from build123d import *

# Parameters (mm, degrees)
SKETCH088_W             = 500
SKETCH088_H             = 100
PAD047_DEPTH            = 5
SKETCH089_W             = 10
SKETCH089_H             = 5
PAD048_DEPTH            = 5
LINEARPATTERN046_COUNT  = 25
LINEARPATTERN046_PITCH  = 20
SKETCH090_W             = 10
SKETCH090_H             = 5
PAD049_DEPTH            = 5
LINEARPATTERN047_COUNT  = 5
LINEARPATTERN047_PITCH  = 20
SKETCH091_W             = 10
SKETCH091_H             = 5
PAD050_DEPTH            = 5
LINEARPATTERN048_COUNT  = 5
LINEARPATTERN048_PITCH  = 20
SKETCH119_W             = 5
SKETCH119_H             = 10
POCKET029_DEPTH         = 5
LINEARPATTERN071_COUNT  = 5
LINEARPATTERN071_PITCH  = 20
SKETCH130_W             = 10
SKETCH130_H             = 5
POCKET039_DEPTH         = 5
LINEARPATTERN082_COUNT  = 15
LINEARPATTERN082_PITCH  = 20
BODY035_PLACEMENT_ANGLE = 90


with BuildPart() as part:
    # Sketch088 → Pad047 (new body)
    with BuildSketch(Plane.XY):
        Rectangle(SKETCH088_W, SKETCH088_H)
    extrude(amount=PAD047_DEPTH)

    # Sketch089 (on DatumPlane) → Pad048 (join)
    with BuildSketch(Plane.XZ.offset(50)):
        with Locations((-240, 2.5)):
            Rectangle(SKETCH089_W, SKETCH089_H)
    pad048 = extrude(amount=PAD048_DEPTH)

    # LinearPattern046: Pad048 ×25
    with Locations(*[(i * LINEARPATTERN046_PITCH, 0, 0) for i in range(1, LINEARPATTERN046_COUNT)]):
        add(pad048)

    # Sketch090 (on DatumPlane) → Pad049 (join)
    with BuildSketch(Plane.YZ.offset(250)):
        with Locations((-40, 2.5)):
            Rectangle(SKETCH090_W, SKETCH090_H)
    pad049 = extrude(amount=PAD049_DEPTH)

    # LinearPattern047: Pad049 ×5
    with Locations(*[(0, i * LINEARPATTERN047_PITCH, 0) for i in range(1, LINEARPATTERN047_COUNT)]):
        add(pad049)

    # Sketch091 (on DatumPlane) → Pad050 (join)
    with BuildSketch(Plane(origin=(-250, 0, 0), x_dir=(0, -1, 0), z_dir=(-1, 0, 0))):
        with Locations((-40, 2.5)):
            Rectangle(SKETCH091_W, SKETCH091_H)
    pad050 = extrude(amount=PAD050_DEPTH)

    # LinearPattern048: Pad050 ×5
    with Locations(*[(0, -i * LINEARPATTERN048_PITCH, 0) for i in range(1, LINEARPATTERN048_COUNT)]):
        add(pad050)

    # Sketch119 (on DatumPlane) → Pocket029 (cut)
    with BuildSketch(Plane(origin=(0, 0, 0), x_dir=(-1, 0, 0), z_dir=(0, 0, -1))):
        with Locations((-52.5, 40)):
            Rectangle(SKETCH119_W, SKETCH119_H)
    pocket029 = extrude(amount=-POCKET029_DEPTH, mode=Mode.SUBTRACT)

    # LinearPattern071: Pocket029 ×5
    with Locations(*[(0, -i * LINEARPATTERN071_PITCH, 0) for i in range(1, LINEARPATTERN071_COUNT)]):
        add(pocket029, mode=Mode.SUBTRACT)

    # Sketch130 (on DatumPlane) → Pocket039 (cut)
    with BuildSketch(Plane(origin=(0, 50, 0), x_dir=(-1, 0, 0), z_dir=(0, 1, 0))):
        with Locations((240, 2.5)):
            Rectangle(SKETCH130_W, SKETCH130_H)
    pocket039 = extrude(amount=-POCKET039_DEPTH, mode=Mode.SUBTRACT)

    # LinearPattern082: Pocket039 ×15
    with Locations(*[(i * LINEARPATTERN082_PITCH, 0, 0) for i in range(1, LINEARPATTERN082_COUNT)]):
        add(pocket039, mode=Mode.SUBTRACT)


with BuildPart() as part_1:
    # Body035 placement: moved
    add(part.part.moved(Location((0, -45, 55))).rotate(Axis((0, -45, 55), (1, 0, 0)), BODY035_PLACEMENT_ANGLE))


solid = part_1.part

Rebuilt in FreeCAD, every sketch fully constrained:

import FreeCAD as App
import Part
import Sketcher
from FreeCAD import Vector
Q = App.Units.Quantity


def add_polygon(sketch, points):
    """Adds a closed chain of lines whose ends are joined by coincident constraints."""
    first, n = sketch.GeometryCount, len(points)
    for a, b in zip(points, points[1:] + points[:1]):
        sketch.addGeometry(Part.LineSegment(App.Vector(*a, 0), App.Vector(*b, 0)), False)
    for i in range(n):
        sketch.addConstraint(Sketcher.Constraint("Coincident", first + i, 2, first + (i + 1) % n, 1))

doc = App.newDocument("Part")
body = doc.addObject("PartDesign::Body", "Body")

sketch1 = body.newObject("Sketcher::SketchObject", "Sketch")
sketch1.AttachmentSupport = (doc.getObject("XY_Plane"), [""])
sketch1.MapMode = "FlatFace"
add_polygon(sketch1, [(-250, 50), (-250, -50), (250, -50), (250, 50)])
sketch1.addConstraint(Sketcher.Constraint("Vertical", 0))
sketch1.addConstraint(Sketcher.Constraint("Horizontal", 1))
sketch1.addConstraint(Sketcher.Constraint("Vertical", 2))
sketch1.addConstraint(Sketcher.Constraint("Horizontal", 3))
sketch1.addConstraint(Sketcher.Constraint("Symmetric", 0, 2, 2, 2, -1, 1))
sketch1.addConstraint(Sketcher.Constraint("DistanceX", 1, 1, 1, 2, Q("500 mm")))
sketch1.addConstraint(Sketcher.Constraint("DistanceY", 0, 2, 0, 1, Q("100 mm")))
pad1 = body.newObject("PartDesign::Pad", "Pad")
pad1.Profile = sketch1
pad1.Length = 5

sketch2 = body.newObject("Sketcher::SketchObject", "Sketch001")
sketch2.AttachmentSupport = (doc.getObject("XZ_Plane"), [""])
sketch2.MapMode = "FlatFace"
sketch2.AttachmentOffset = App.Placement(Vector(0, 0, 50), App.Rotation())
add_polygon(sketch2, [(-245, 5), (-245, 0), (-235, 0), (-235, 5)])
sketch2.addConstraint(Sketcher.Constraint("Vertical", 0))
sketch2.addConstraint(Sketcher.Constraint("Horizontal", 1))
sketch2.addConstraint(Sketcher.Constraint("Vertical", 2))
sketch2.addConstraint(Sketcher.Constraint("Horizontal", 3))
sketch2.addConstraint(Sketcher.Constraint("PointOnObject", 0, 2, -1))
sketch2.addConstraint(Sketcher.Constraint("DistanceX", 1, 1, 1, 2, Q("10 mm")))
sketch2.addConstraint(Sketcher.Constraint("DistanceY", 0, 2, 0, 1, Q("5 mm")))
sketch2.addConstraint(Sketcher.Constraint("DistanceX", 0, 2, -1, 1, Q("245 mm")))
pad2 = body.newObject("PartDesign::Pad", "Pad001")
pad2.Profile = sketch2
pad2.Length = 5
doc.recompute()

linearpattern = body.newObject("PartDesign::LinearPattern", "LinearPattern")
linearpattern.Originals = [pad2]
linearpattern.Direction = (doc.getObject("X_Axis"), [""])
linearpattern.Mode = "offset"
linearpattern.Offset = 20
linearpattern.Occurrences = 25
body.Tip = linearpattern

sketch3 = body.newObject("Sketcher::SketchObject", "Sketch002")
sketch3.AttachmentSupport = (doc.getObject("YZ_Plane"), [""])
sketch3.MapMode = "FlatFace"
sketch3.AttachmentOffset = App.Placement(Vector(0, 0, 250), App.Rotation())
add_polygon(sketch3, [(-45, 5), (-45, 0), (-35, 0), (-35, 5)])
sketch3.addConstraint(Sketcher.Constraint("Vertical", 0))
sketch3.addConstraint(Sketcher.Constraint("Horizontal", 1))
sketch3.addConstraint(Sketcher.Constraint("Vertical", 2))
sketch3.addConstraint(Sketcher.Constraint("Horizontal", 3))
sketch3.addConstraint(Sketcher.Constraint("PointOnObject", 0, 2, -1))
sketch3.addConstraint(Sketcher.Constraint("DistanceX", 1, 1, 1, 2, Q("10 mm")))
sketch3.addConstraint(Sketcher.Constraint("DistanceY", 0, 2, 0, 1, Q("5 mm")))
sketch3.addConstraint(Sketcher.Constraint("DistanceX", 0, 2, -1, 1, Q("45 mm")))
pad3 = body.newObject("PartDesign::Pad", "Pad002")
pad3.Profile = sketch3
pad3.Length = 5
doc.recompute()

linearpattern2 = body.newObject("PartDesign::LinearPattern", "LinearPattern001")
linearpattern2.Originals = [pad3]
linearpattern2.Direction = (doc.getObject("Y_Axis"), [""])
linearpattern2.Mode = "offset"
linearpattern2.Offset = 20
linearpattern2.Occurrences = 5
body.Tip = linearpattern2

sketch4 = body.newObject("Sketcher::SketchObject", "Sketch003")
sketch4.AttachmentSupport = (doc.getObject("YZ_Plane"), [""])
sketch4.MapMode = "FlatFace"
sketch4.AttachmentOffset = App.Placement(Vector(0, 0, -250), App.Rotation())
add_polygon(sketch4, [(45, 5), (45, 0), (35, 0), (35, 5)])
sketch4.addConstraint(Sketcher.Constraint("Vertical", 0))
sketch4.addConstraint(Sketcher.Constraint("Horizontal", 1))
sketch4.addConstraint(Sketcher.Constraint("Vertical", 2))
sketch4.addConstraint(Sketcher.Constraint("Horizontal", 3))
sketch4.addConstraint(Sketcher.Constraint("PointOnObject", 0, 2, -1))
sketch4.addConstraint(Sketcher.Constraint("DistanceX", 1, 2, 1, 1, Q("10 mm")))
sketch4.addConstraint(Sketcher.Constraint("DistanceY", 0, 2, 0, 1, Q("5 mm")))
sketch4.addConstraint(Sketcher.Constraint("DistanceX", -1, 1, 0, 2, Q("45 mm")))
pad4 = body.newObject("PartDesign::Pad", "Pad003")
pad4.Profile = sketch4
pad4.Length = 5
pad4.Reversed = True
doc.recompute()

linearpattern3 = body.newObject("PartDesign::LinearPattern", "LinearPattern002")
linearpattern3.Originals = [pad4]
linearpattern3.Direction = (doc.getObject("Y_Axis"), [""])
linearpattern3.Mode = "offset"
linearpattern3.Offset = 20
linearpattern3.Occurrences = 5
linearpattern3.Reversed = True
body.Tip = linearpattern3

sketch5 = body.newObject("Sketcher::SketchObject", "Sketch004")
sketch5.AttachmentSupport = (doc.getObject("XY_Plane"), [""])
sketch5.MapMode = "FlatFace"
add_polygon(sketch5, [(55, 45), (55, 35), (50, 35), (50, 45)])
sketch5.addConstraint(Sketcher.Constraint("Vertical", 0))
sketch5.addConstraint(Sketcher.Constraint("Horizontal", 1))
sketch5.addConstraint(Sketcher.Constraint("Vertical", 2))
sketch5.addConstraint(Sketcher.Constraint("Horizontal", 3))
sketch5.addConstraint(Sketcher.Constraint("DistanceX", 1, 2, 1, 1, Q("5 mm")))
sketch5.addConstraint(Sketcher.Constraint("DistanceY", 0, 2, 0, 1, Q("10 mm")))
sketch5.addConstraint(Sketcher.Constraint("DistanceX", -1, 1, 0, 2, Q("55 mm")))
sketch5.addConstraint(Sketcher.Constraint("DistanceY", -1, 1, 0, 2, Q("35 mm")))
pocket1 = body.newObject("PartDesign::Pocket", "Pocket")
pocket1.Profile = sketch5
pocket1.Length = 5
pocket1.Reversed = True
doc.recompute()

linearpattern4 = body.newObject("PartDesign::LinearPattern", "LinearPattern003")
linearpattern4.Originals = [pocket1]
linearpattern4.Direction = (doc.getObject("Y_Axis"), [""])
linearpattern4.Mode = "offset"
linearpattern4.Offset = 20
linearpattern4.Occurrences = 5
linearpattern4.Reversed = True
body.Tip = linearpattern4

sketch6 = body.newObject("Sketcher::SketchObject", "Sketch005")
sketch6.AttachmentSupport = (doc.getObject("XZ_Plane"), [""])
sketch6.MapMode = "FlatFace"
sketch6.AttachmentOffset = App.Placement(Vector(0, 0, -50), App.Rotation())
add_polygon(sketch6, [(-235, 5), (-235, 0), (-245, 0), (-245, 5)])
sketch6.addConstraint(Sketcher.Constraint("Vertical", 0))
sketch6.addConstraint(Sketcher.Constraint("Horizontal", 1))
sketch6.addConstraint(Sketcher.Constraint("Vertical", 2))
sketch6.addConstraint(Sketcher.Constraint("Horizontal", 3))
sketch6.addConstraint(Sketcher.Constraint("PointOnObject", 0, 2, -1))
sketch6.addConstraint(Sketcher.Constraint("DistanceX", 1, 2, 1, 1, Q("10 mm")))
sketch6.addConstraint(Sketcher.Constraint("DistanceY", 0, 2, 0, 1, Q("5 mm")))
sketch6.addConstraint(Sketcher.Constraint("DistanceX", 0, 2, -1, 1, Q("235 mm")))
pocket2 = body.newObject("PartDesign::Pocket", "Pocket001")
pocket2.Profile = sketch6
pocket2.Length = 5
pocket2.Reversed = True
doc.recompute()

linearpattern5 = body.newObject("PartDesign::LinearPattern", "LinearPattern004")
linearpattern5.Originals = [pocket2]
linearpattern5.Direction = (doc.getObject("X_Axis"), [""])
linearpattern5.Mode = "offset"
linearpattern5.Offset = 20
linearpattern5.Occurrences = 15
body.Tip = linearpattern5
body2 = doc.addObject("PartDesign::Body", "Body001")
doc.recompute()

body.Placement = App.Placement(Vector(0, -45, 55), App.Rotation(Vector(1, 0, 0), 90))
boolean = body2.newObject("PartDesign::Boolean", "Boolean")
boolean.Type = "Fuse"
boolean.addObjects([body])

doc.recompute()
